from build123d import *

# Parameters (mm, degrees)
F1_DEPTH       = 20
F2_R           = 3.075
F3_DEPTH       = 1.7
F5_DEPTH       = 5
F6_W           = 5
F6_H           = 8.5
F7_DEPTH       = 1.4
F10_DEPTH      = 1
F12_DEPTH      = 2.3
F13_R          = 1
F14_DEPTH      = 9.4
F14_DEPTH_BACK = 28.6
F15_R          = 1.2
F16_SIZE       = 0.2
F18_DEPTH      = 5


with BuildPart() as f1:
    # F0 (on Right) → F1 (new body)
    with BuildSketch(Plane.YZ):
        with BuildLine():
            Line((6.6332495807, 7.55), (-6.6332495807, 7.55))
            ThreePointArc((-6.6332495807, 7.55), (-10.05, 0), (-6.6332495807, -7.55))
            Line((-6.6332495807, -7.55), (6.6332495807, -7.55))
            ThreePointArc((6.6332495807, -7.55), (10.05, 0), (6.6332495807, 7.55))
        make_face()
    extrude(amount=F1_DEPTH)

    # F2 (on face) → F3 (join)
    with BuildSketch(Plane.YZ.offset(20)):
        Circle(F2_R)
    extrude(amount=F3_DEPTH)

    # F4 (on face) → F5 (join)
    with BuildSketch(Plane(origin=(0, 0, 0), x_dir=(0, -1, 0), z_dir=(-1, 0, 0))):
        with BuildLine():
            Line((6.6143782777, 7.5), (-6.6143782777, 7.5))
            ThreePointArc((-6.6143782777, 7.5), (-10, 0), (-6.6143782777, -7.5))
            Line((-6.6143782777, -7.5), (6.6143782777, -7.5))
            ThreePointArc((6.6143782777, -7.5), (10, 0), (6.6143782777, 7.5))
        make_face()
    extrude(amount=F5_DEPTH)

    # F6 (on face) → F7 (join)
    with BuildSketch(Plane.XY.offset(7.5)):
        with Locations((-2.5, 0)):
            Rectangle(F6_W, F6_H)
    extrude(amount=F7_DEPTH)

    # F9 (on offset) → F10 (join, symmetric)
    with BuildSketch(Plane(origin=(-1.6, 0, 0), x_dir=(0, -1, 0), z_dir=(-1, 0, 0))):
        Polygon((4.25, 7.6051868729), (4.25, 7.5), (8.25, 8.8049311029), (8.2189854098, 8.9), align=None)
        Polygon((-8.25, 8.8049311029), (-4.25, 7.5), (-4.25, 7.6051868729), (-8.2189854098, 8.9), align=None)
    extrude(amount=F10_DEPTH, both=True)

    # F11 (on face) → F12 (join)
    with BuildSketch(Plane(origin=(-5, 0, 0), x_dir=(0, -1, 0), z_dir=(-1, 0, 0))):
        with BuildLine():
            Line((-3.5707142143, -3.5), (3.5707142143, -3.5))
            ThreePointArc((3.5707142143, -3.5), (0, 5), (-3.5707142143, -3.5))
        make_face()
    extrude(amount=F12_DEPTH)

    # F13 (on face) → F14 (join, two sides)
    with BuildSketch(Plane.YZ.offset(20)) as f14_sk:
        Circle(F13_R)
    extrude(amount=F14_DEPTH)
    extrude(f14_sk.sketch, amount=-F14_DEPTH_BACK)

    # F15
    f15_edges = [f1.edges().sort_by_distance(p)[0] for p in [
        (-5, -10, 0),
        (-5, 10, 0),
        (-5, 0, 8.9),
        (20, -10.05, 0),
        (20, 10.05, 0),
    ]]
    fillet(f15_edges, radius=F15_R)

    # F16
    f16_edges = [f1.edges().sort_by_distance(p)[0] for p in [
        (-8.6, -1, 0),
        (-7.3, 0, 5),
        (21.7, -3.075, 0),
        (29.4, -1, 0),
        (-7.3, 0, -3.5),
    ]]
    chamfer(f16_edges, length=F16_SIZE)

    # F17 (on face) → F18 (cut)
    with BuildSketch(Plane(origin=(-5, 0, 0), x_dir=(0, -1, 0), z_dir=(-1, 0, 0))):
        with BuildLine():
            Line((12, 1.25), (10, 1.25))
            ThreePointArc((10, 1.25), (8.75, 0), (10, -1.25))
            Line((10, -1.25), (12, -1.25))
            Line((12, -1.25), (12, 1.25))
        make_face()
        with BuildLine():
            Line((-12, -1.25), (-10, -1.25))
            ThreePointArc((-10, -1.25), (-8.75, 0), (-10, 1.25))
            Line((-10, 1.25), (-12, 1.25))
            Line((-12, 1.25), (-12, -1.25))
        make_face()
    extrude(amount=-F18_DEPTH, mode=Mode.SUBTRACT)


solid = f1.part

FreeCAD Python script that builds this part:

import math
import FreeCAD as App
import Part
import Sketcher

V = App.Vector


def edges_at(feature, points):
    """Names of the edges that pass closest to the given points."""
    edges = feature.Shape.Edges
    near = lambda p: min(range(len(edges)), key=lambda i: edges[i].distToShape(Part.Vertex(*p))[0])
    return sorted({f"Edge{near(p) + 1}" for p in points})

doc = App.newDocument("Part")
body = doc.addObject("PartDesign::Body", "Body")

# Sketch on YZ plane
sketch1 = body.newObject("Sketcher::SketchObject", "Sketch")
sketch1.AttachmentSupport = (doc.getObject("YZ_Plane"), [""])
sketch1.MapMode = "FlatFace"
sketch1.addGeometry(Part.LineSegment(V(7, 8, 0), V(-7, 8, 0)), False)
sketch1.addGeometry(Part.ArcOfCircle(Part.Circle(V(0, 0, 0), V(0, 0, 1), 10), math.radians(131), math.radians(229)), False)
sketch1.addGeometry(Part.LineSegment(V(-7, -8, 0), V(7, -8, 0)), False)
sketch1.addGeometry(Part.ArcOfCircle(Part.Circle(V(0, 0, 0), V(0, 0, 1), 10), math.radians(-49), math.radians(49)), False)
sketch1.addConstraint(Sketcher.Constraint("Coincident", 0, 2, 1, 1))
sketch1.addConstraint(Sketcher.Constraint("Coincident", 1, 2, 2, 1))
sketch1.addConstraint(Sketcher.Constraint("Coincident", 2, 2, 3, 1))
sketch1.addConstraint(Sketcher.Constraint("Coincident", 3, 2, 0, 1))
sketch1.addConstraint(Sketcher.Constraint("Horizontal", 0))
sketch1.addConstraint(Sketcher.Constraint("Horizontal", 2))
sketch1.addConstraint(Sketcher.Constraint("Coincident", 1, 3, -1, 1))
sketch1.addConstraint(Sketcher.Constraint("Coincident", 3, 3, -1, 1))
sketch1.addConstraint(Sketcher.Constraint("Equal", 1, 3))
sketch1.addConstraint(Sketcher.Constraint("Vertical", 0, 2, 1, 2))
sketch1.addConstraint(Sketcher.Constraint("Radius", 1, 10.05))
sketch1.addConstraint(Sketcher.Constraint("DistanceY", 1, 2, 0, 2, 15.1))
pad1 = body.newObject("PartDesign::Pad", "Pad")
pad1.Profile = sketch1
pad1.Length = 20

# Sketch on YZ plane
sketch2 = body.newObject("Sketcher::SketchObject", "Sketch001")
sketch2.AttachmentSupport = (doc.getObject("YZ_Plane"), [""])
sketch2.MapMode = "FlatFace"
sketch2.AttachmentOffset = App.Placement(V(0, 0, 20), App.Rotation())
sketch2.addGeometry(Part.Circle(V(0, 0, 0), V(0, 0, 1), 3.1), False)
sketch2.addConstraint(Sketcher.Constraint("Coincident", 0, 3, -1, 1))
sketch2.addConstraint(Sketcher.Constraint("Diameter", 0, 6.15))
pad2 = body.newObject("PartDesign::Pad", "Pad001")
pad2.Profile = sketch2
pad2.Length = 1.7

# Sketch on YZ plane
sketch3 = body.newObject("Sketcher::SketchObject", "Sketch002")
sketch3.AttachmentSupport = (doc.getObject("YZ_Plane"), [""])
sketch3.MapMode = "FlatFace"
sketch3.addGeometry(Part.LineSegment(V(-7, 8, 0), V(7, 8, 0)), False)
sketch3.addGeometry(Part.ArcOfCircle(Part.Circle(V(0, 0, 0), V(0, 0, 1), 10), math.radians(-49), math.radians(49)), False)
sketch3.addGeometry(Part.LineSegment(V(7, -8, 0), V(-7, -8, 0)), False)
sketch3.addGeometry(Part.ArcOfCircle(Part.Circle(V(0, 0, 0), V(0, 0, 1), 10), math.radians(131), math.radians(229)), False)
sketch3.addConstraint(Sketcher.Constraint("Coincident", 0, 2, 1, 2))
sketch3.addConstraint(Sketcher.Constraint("Coincident", 1, 1, 2, 1))
sketch3.addConstraint(Sketcher.Constraint("Coincident", 2, 2, 3, 2))
sketch3.addConstraint(Sketcher.Constraint("Coincident", 3, 1, 0, 1))
sketch3.addConstraint(Sketcher.Constraint("Horizontal", 0))
sketch3.addConstraint(Sketcher.Constraint("Horizontal", 2))
sketch3.addConstraint(Sketcher.Constraint("Coincident", 1, 3, -1, 1))
sketch3.addConstraint(Sketcher.Constraint("Coincident", 3, 3, -1, 1))
sketch3.addConstraint(Sketcher.Constraint("Equal", 1, 3))
sketch3.addConstraint(Sketcher.Constraint("Vertical", 0, 2, 1, 1))
sketch3.addConstraint(Sketcher.Constraint("Radius", 1, 10.0))
sketch3.addConstraint(Sketcher.Constraint("DistanceY", 1, 1, 0, 2, 15.0))
pad3 = body.newObject("PartDesign::Pad", "Pad002")
pad3.Profile = sketch3
pad3.Length = 5
pad3.Reversed = True

# Sketch on XY plane
sketch4 = body.newObject("Sketcher::SketchObject", "Sketch003")
sketch4.AttachmentSupport = (doc.getObject("XY_Plane"), [""])
sketch4.MapMode = "FlatFace"
sketch4.AttachmentOffset = App.Placement(V(0, 0, 7.5), App.Rotation())
sketch4.addGeometry(Part.LineSegment(V(-5, 4, 0), V(-5, -4, 0)), False)
sketch4.addGeometry(Part.LineSegment(V(-5, -4, 0), V(0, -4, 0)), False)
sketch4.addGeometry(Part.LineSegment(V(0, -4, 0), V(0, 4, 0)), False)
sketch4.addGeometry(Part.LineSegment(V(0, 4, 0), V(-5, 4, 0)), False)
sketch4.addConstraint(Sketcher.Constraint("Coincident", 0, 2, 1, 1))
sketch4.addConstraint(Sketcher.Constraint("Coincident", 1, 2, 2, 1))
sketch4.addConstraint(Sketcher.Constraint("Coincident", 2, 2, 3, 1))
sketch4.addConstraint(Sketcher.Constraint("Coincident", 3, 2, 0, 1))
sketch4.addConstraint(Sketcher.Constraint("Vertical", 0))
sketch4.addConstraint(Sketcher.Constraint("Horizontal", 1))
sketch4.addConstraint(Sketcher.Constraint("Vertical", 2))
sketch4.addConstraint(Sketcher.Constraint("Horizontal", 3))
sketch4.addConstraint(Sketcher.Constraint("Symmetric", 1, 2, 2, 2, -1, 1))
sketch4.addConstraint(Sketcher.Constraint("DistanceX", 1, 1, 1, 2, 5.0))
sketch4.addConstraint(Sketcher.Constraint("DistanceY", 0, 2, 0, 1, 8.5))
pad4 = body.newObject("PartDesign::Pad", "Pad003")
pad4.Profile = sketch4
pad4.Length = 1.4

# Sketch on YZ plane
sketch5 = body.newObject("Sketcher::SketchObject", "Sketch004")
sketch5.AttachmentSupport = (doc.getObject("YZ_Plane"), [""])
sketch5.MapMode = "FlatFace"
sketch5.AttachmentOffset = App.Placement(V(0, 0, -1.6), App.Rotation())
sketch5.addGeometry(Part.LineSegment(V(-4.25, 7.61, 0), V(-4.25, 7.5, 0)), False)
sketch5.addGeometry(Part.LineSegment(V(-4.25, 7.5, 0), V(-8.25, 8.8, 0)), False)
sketch5.addGeometry(Part.LineSegment(V(-8.25, 8.8, 0), V(-8.22, 8.9, 0)), False)
sketch5.addGeometry(Part.LineSegment(V(-8.22, 8.9, 0), V(-4.25, 7.61, 0)), False)
sketch5.addGeometry(Part.LineSegment(V(8.25, 8.8, 0), V(4.25, 7.5, 0)), False)
sketch5.addGeometry(Part.LineSegment(V(4.25, 7.5, 0), V(4.25, 7.61, 0)), False)
sketch5.addGeometry(Part.LineSegment(V(4.25, 7.61, 0), V(8.22, 8.9, 0)), False)
sketch5.addGeometry(Part.LineSegment(V(8.22, 8.9, 0), V(8.25, 8.8, 0)), False)
sketch5.addConstraint(Sketcher.Constraint("Coincident", 0, 2, 1, 1))
sketch5.addConstraint(Sketcher.Constraint("Coincident", 1, 2, 2, 1))
sketch5.addConstraint(Sketcher.Constraint("Coincident", 2, 2, 3, 1))
sketch5.addConstraint(Sketcher.Constraint("Coincident", 3, 2, 0, 1))
sketch5.addConstraint(Sketcher.Constraint("Coincident", 4, 2, 5, 1))
sketch5.addConstraint(Sketcher.Constraint("Coincident", 5, 2, 6, 1))
sketch5.addConstraint(Sketcher.Constraint("Coincident", 6, 2, 7, 1))
sketch5.addConstraint(Sketcher.Constraint("Coincident", 7, 2, 4, 1))
sketch5.addConstraint(Sketcher.Constraint("Vertical", 0))
sketch5.addConstraint(Sketcher.Constraint("Vertical", 5))
sketch5.addConstraint(Sketcher.Constraint("Symmetric", 0, 2, 4, 2, -2))
sketch5.addConstraint(Sketcher.Constraint("Symmetric", 2, 2, 6, 2, -2))
sketch5.addConstraint(Sketcher.Constraint("Symmetric", 1, 2, 7, 2, -2))
sketch5.addConstraint(Sketcher.Constraint("Perpendicular", 1, 2))
sketch5.addConstraint(Sketcher.Constraint("Perpendicular", 2, 3))
sketch5.addConstraint(Sketcher.Constraint("Parallel", 4, 6))
sketch5.addConstraint(Sketcher.Constraint("DistanceX", 1, 2, 0, 2, 4.0))
sketch5.addConstraint(Sketcher.Constraint("Distance", 2, 0.1))
sketch5.addConstraint(Sketcher.Constraint("DistanceY", -1, 1, 0, 2, 7.5))
sketch5.addConstraint(Sketcher.Constraint("DistanceY", -1, 1, 2, 2, 8.9))
sketch5.addConstraint(Sketcher.Constraint("DistanceX", 0, 2, 4, 2, 8.5))
pad5 = body.newObject("PartDesign::Pad", "Pad004")
pad5.Profile = sketch5
pad5.Length = 2
pad5.Midplane = True

# Sketch on YZ plane
sketch6 = body.newObject("Sketcher::SketchObject", "Sketch005")
sketch6.AttachmentSupport = (doc.getObject("YZ_Plane"), [""])
sketch6.MapMode = "FlatFace"
sketch6.AttachmentOffset = App.Placement(V(0, 0, -5), App.Rotation())
sketch6.addGeometry(Part.LineSegment(V(4, -4, 0), V(-4, -4, 0)), False)
sketch6.addGeometry(Part.ArcOfCircle(Part.Circle(V(0, 0, 0), V(0, 0, 1), 5), math.radians(-44), math.radians(224)), False)
sketch6.addConstraint(Sketcher.Constraint("Coincident", 0, 1, 1, 1))
sketch6.addConstraint(Sketcher.Constraint("Coincident", 1, 2, 0, 2))
sketch6.addConstraint(Sketcher.Constraint("Horizontal", 0))
sketch6.addConstraint(Sketcher.Constraint("Coincident", 1, 3, -1, 1))
sketch6.addConstraint(Sketcher.Constraint("Radius", 1, 5.0))
sketch6.addConstraint(Sketcher.Constraint("DistanceY", 0, 1, -1, 1, 3.5))
pad6 = body.newObject("PartDesign::Pad", "Pad005")
pad6.Profile = sketch6
pad6.Length = 2.3
pad6.Reversed = True

# Sketch on YZ plane
sketch7 = body.newObject("Sketcher::SketchObject", "Sketch006")
sketch7.AttachmentSupport = (doc.getObject("YZ_Plane"), [""])
sketch7.MapMode = "FlatFace"
sketch7.AttachmentOffset = App.Placement(V(0, 0, 20), App.Rotation())
sketch7.addGeometry(Part.Circle(V(0, 0, 0), V(0, 0, 1), 1), False)
sketch7.addConstraint(Sketcher.Constraint("Coincident", 0, 3, -1, 1))
sketch7.addConstraint(Sketcher.Constraint("Diameter", 0, 2.0))
pad7 = body.newObject("PartDesign::Pad", "Pad006")
pad7.Profile = sketch7
pad7.Type = "TwoLengths"
pad7.Length = 9.4
pad7.Length2 = 28.6
doc.recompute()

fillet = body.newObject("PartDesign::Fillet", "Fillet")
fillet.Base = (pad7, edges_at(pad7, [
    (-5, -10, 0),
    (-5, 10, 0),
    (-5, 0, 8.9),
    (20, -10.05, 0),
    (20, 10.05, 0),
]))
fillet.Radius = 1.2
doc.recompute()

chamfer = body.newObject("PartDesign::Chamfer", "Chamfer")
chamfer.Base = (fillet, edges_at(fillet, [
    (-8.6, -1, 0),
    (-7.3, 0, 5),
    (21.7, -3.075, 0),
    (29.4, -1, 0),
    (-7.3, 0, -3.5),
]))
chamfer.Size = 0.2

# Sketch on YZ plane
sketch8 = body.newObject("Sketcher::SketchObject", "Sketch007")
sketch8.AttachmentSupport = (doc.getObject("YZ_Plane"), [""])
sketch8.MapMode = "FlatFace"
sketch8.AttachmentOffset = App.Placement(V(0, 0, -5), App.Rotation())
sketch8.addGeometry(Part.LineSegment(V(-12, 1.2, 0), V(-10, 1.2, 0)), False)
sketch8.addGeometry(Part.ArcOfCircle(Part.Circle(V(-10, 0, 0), V(0, 0, 1), 1.2), math.radians(-90), math.radians(90)), False)
sketch8.addGeometry(Part.LineSegment(V(-10, -1.2, 0), V(-12, -1.2, 0)), False)
sketch8.addGeometry(Part.LineSegment(V(-12, -1.2, 0), V(-12, 1.2, 0)), False)
sketch8.addGeometry(Part.LineSegment(V(12, -1.2, 0), V(10, -1.2, 0)), False)
sketch8.addGeometry(Part.ArcOfCircle(Part.Circle(V(10, 0, 0), V(0, 0, 1), 1.2), math.radians(90), math.radians(270)), False)
sketch8.addGeometry(Part.LineSegment(V(10, 1.2, 0), V(12, 1.2, 0)), False)
sketch8.addGeometry(Part.LineSegment(V(12, 1.2, 0), V(12, -1.2, 0)), False)
sketch8.addConstraint(Sketcher.Constraint("Tangent", 0, 2, 1, 2))
sketch8.addConstraint(Sketcher.Constraint("Tangent", 1, 1, 2, 1))
sketch8.addConstraint(Sketcher.Constraint("Coincident", 2, 2, 3, 1))
sketch8.addConstraint(Sketcher.Constraint("Coincident", 3, 2, 0, 1))
sketch8.addConstraint(Sketcher.Constraint("Tangent", 4, 2, 5, 2))
sketch8.addConstraint(Sketcher.Constraint("Tangent", 5, 1, 6, 1))
sketch8.addConstraint(Sketcher.Constraint("Coincident", 6, 2, 7, 1))
sketch8.addConstraint(Sketcher.Constraint("Coincident", 7, 2, 4, 1))
sketch8.addConstraint(Sketcher.Constraint("Horizontal", 0))
sketch8.addConstraint(Sketcher.Constraint("Horizontal", 2))
sketch8.addConstraint(Sketcher.Constraint("Vertical", 3))
sketch8.addConstraint(Sketcher.Constraint("Horizontal", 4))
sketch8.addConstraint(Sketcher.Constraint("Horizontal", 6))
sketch8.addConstraint(Sketcher.Constraint("Vertical", 7))
sketch8.addConstraint(Sketcher.Constraint("Equal", 1, 5))
sketch8.addConstraint(Sketcher.Constraint("Symmetric", 1, 3, 5, 3, -1, 1))
sketch8.addConstraint(Sketcher.Constraint("Symmetric", 3, 2, 6, 2, -2))
sketch8.addConstraint(Sketcher.Constraint("DistanceX", 0, 1, 0, 2, 2.0))
sketch8.addConstraint(Sketcher.Constraint("Radius", 1, 1.25))
sketch8.addConstraint(Sketcher.Constraint("DistanceX", 1, 3, -1, 1, 10.0))
pocket1 = body.newObject("PartDesign::Pocket", "Pocket")
pocket1.Profile = sketch8
pocket1.Length = 5
pocket1.Reversed = True

doc.recompute()
